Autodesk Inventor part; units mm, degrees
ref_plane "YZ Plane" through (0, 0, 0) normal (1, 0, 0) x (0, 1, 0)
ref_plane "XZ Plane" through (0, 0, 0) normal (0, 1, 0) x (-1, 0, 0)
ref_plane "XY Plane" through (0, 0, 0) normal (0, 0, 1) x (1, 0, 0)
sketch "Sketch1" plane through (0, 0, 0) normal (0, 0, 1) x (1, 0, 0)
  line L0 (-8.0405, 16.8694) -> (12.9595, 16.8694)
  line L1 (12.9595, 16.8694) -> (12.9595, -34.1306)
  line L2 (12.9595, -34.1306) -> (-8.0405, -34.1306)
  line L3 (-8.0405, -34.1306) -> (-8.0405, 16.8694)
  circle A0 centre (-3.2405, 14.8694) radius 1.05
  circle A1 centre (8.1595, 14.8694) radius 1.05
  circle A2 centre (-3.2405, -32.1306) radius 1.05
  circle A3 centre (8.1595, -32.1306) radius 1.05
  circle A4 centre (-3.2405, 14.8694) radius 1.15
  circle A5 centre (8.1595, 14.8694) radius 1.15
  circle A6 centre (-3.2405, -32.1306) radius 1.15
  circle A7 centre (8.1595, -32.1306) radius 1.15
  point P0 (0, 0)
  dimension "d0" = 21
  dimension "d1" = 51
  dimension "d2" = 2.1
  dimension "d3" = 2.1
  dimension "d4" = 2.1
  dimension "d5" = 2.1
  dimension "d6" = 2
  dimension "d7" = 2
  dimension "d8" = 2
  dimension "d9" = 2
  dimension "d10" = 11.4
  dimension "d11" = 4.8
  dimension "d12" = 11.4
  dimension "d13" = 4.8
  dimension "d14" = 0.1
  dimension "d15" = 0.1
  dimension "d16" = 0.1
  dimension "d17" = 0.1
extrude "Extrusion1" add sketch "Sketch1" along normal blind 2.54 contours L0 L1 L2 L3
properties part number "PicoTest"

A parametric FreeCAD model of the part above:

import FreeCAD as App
import Part
import Sketcher
Q = App.Units.Quantity


def add_polygon(sketch, points):
    """Adds a closed chain of lines whose ends are joined by coincident constraints."""
    first, n = sketch.GeometryCount, len(points)
    for a, b in zip(points, points[1:] + points[:1]):
        sketch.addGeometry(Part.LineSegment(App.Vector(*a, 0), App.Vector(*b, 0)), False)
    for i in range(n):
        sketch.addConstraint(Sketcher.Constraint("Coincident", first + i, 2, first + (i + 1) % n, 1))

doc = App.newDocument("Part")
body = doc.addObject("PartDesign::Body", "Body")

# Sketch on XY plane
sketch1 = body.newObject("Sketcher::SketchObject", "Sketch")
sketch1.AttachmentSupport = (doc.getObject("XY_Plane"), [""])
sketch1.MapMode = "FlatFace"
add_polygon(sketch1, [(13, 16.9), (-8, 16.9), (-8, -34.1), (13, -34.1)])  # lines 0-3
sketch1.addGeometry(Part.Circle(App.Vector(-3.2, -32.1, 0), App.Vector(0, 0, 1), 1.1), False)  # 4
sketch1.addGeometry(Part.Circle(App.Vector(8.2, -32.1, 0), App.Vector(0, 0, 1), 1.1), False)  # 5
sketch1.addGeometry(Part.Circle(App.Vector(-3.2, 14.9, 0), App.Vector(0, 0, 1), 1.1), False)  # 6
sketch1.addGeometry(Part.Circle(App.Vector(8.2, 14.9, 0), App.Vector(0, 0, 1), 1.1), False)  # 7
sketch1.addConstraint(Sketcher.Constraint("Horizontal", 0))
sketch1.addConstraint(Sketcher.Constraint("Vertical", 1))
sketch1.addConstraint(Sketcher.Constraint("Horizontal", 2))
sketch1.addConstraint(Sketcher.Constraint("Vertical", 3))
sketch1.addConstraint(Sketcher.Constraint("Equal", 4, 5))
sketch1.addConstraint(Sketcher.Constraint("Equal", 5, 6))
sketch1.addConstraint(Sketcher.Constraint("Equal", 6, 7))
sketch1.addConstraint(Sketcher.Constraint("Horizontal", 4, 3, 5, 3))
sketch1.addConstraint(Sketcher.Constraint("Horizontal", 6, 3, 7, 3))
sketch1.addConstraint(Sketcher.Constraint("Vertical", 4, 3, 6, 3))
sketch1.addConstraint(Sketcher.Constraint("Vertical", 5, 3, 7, 3))
sketch1.addConstraint(Sketcher.Constraint("DistanceX", 0, 2, 0, 1, Q("21 mm")))
sketch1.addConstraint(Sketcher.Constraint("DistanceY", 1, 2, 1, 1, Q("51 mm")))
sketch1.addConstraint(Sketcher.Constraint("DistanceY", 6, 3, 0, 2, Q("2 mm")))
sketch1.addConstraint(Sketcher.Constraint("DistanceY", 1, 2, 4, 3, Q("2 mm")))
sketch1.addConstraint(Sketcher.Constraint("Diameter", 4, Q("2.3 mm")))
sketch1.addConstraint(Sketcher.Constraint("DistanceX", 4, 3, 5, 3, Q("11.4 mm")))
sketch1.addConstraint(Sketcher.Constraint("DistanceX", 0, 2, 6, 3, Q("4.8 mm")))
sketch1.addConstraint(Sketcher.Constraint("DistanceX", 4, 3, -1, 1, Q("3.2405 mm")))
sketch1.addConstraint(Sketcher.Constraint("DistanceY", 4, 3, -1, 1, Q("32.1306 mm")))
pad1 = body.newObject("PartDesign::Pad", "Pad")
pad1.Profile = sketch1
pad1.Length = 2.54

doc.recompute()
